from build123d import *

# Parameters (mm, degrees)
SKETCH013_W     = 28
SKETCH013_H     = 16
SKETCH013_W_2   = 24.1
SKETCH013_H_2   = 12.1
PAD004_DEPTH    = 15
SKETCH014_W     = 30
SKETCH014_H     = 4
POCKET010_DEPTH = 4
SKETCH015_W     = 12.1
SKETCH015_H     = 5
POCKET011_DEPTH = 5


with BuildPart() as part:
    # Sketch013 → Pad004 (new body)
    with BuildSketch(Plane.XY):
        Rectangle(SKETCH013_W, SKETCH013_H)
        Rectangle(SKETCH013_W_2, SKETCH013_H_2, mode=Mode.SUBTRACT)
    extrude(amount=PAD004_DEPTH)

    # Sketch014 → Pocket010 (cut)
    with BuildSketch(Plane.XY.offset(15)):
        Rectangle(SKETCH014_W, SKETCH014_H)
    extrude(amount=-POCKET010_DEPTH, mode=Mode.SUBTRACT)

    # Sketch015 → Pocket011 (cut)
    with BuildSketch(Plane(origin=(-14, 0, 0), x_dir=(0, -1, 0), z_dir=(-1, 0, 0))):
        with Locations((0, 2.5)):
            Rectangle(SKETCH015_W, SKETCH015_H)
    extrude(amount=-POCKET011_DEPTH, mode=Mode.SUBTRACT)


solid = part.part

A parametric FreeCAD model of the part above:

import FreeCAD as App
import Part
import Sketcher

V = App.Vector
Q = App.Units.Quantity

doc = App.newDocument("Part")
body = doc.addObject("PartDesign::Body", "Body")

sketch1 = body.newObject("Sketcher::SketchObject", "Sketch")
sketch1.AttachmentSupport = (doc.getObject("XY_Plane"), [""])
sketch1.MapMode = "FlatFace"
sketch1.addGeometry([
    Part.LineSegment(V(-14, 8, 0), V(-14, -8, 0)),
    Part.LineSegment(V(-14, -8, 0), V(14, -8, 0)),
    Part.LineSegment(V(14, -8, 0), V(14, 8, 0)),
    Part.LineSegment(V(14, 8, 0), V(-14, 8, 0)),
    Part.LineSegment(V(12, -6, 0), V(-12, -6, 0)),
    Part.LineSegment(V(-12, -6, 0), V(-12, 6, 0)),
    Part.LineSegment(V(-12, 6, 0), V(12, 6, 0)),
    Part.LineSegment(V(12, 6, 0), V(12, -6, 0)),
], False)
sketch1.addConstraint([
    Sketcher.Constraint("Coincident", 0, 2, 1, 1),
    Sketcher.Constraint("Coincident", 1, 2, 2, 1),
    Sketcher.Constraint("Coincident", 2, 2, 3, 1),
    Sketcher.Constraint("Coincident", 3, 2, 0, 1),
    Sketcher.Constraint("Coincident", 4, 2, 5, 1),
    Sketcher.Constraint("Coincident", 5, 2, 6, 1),
    Sketcher.Constraint("Coincident", 6, 2, 7, 1),
    Sketcher.Constraint("Coincident", 7, 2, 4, 1),
    Sketcher.Constraint("Vertical", 0),
    Sketcher.Constraint("Horizontal", 1),
    Sketcher.Constraint("Vertical", 2),
    Sketcher.Constraint("Horizontal", 3),
    Sketcher.Constraint("Horizontal", 4),
    Sketcher.Constraint("Vertical", 5),
    Sketcher.Constraint("Horizontal", 6),
    Sketcher.Constraint("Vertical", 7),
    Sketcher.Constraint("Symmetric", 0, 2, 2, 2, -1, 1),
    Sketcher.Constraint("Symmetric", 4, 2, 6, 2, -1, 1),
    Sketcher.Constraint("DistanceX", 1, 1, 1, 2, Q("28 mm")),
    Sketcher.Constraint("DistanceY", 0, 2, 0, 1, Q("16 mm")),
    Sketcher.Constraint("DistanceX", 4, 2, 4, 1, Q("24.1 mm")),
    Sketcher.Constraint("DistanceY", 5, 1, 5, 2, Q("12.1 mm")),
])
pad1 = body.newObject("PartDesign::Pad", "Pad")
pad1.Profile = sketch1
pad1.Length = 15

sketch2 = body.newObject("Sketcher::SketchObject", "Sketch001")
sketch2.AttachmentSupport = (doc.getObject("XY_Plane"), [""])
sketch2.MapMode = "FlatFace"
sketch2.AttachmentOffset = App.Placement(V(0, 0, 15), App.Rotation())
sketch2.addGeometry([
    Part.LineSegment(V(-15, 2, 0), V(-15, -2, 0)),
    Part.LineSegment(V(-15, -2, 0), V(15, -2, 0)),
    Part.LineSegment(V(15, -2, 0), V(15, 2, 0)),
    Part.LineSegment(V(15, 2, 0), V(-15, 2, 0)),
], False)
sketch2.addConstraint([
    Sketcher.Constraint("Coincident", 0, 2, 1, 1),
    Sketcher.Constraint("Coincident", 1, 2, 2, 1),
    Sketcher.Constraint("Coincident", 2, 2, 3, 1),
    Sketcher.Constraint("Coincident", 3, 2, 0, 1),
    Sketcher.Constraint("Vertical", 0),
    Sketcher.Constraint("Horizontal", 1),
    Sketcher.Constraint("Vertical", 2),
    Sketcher.Constraint("Horizontal", 3),
    Sketcher.Constraint("Symmetric", 0, 2, 2, 2, -1, 1),
    Sketcher.Constraint("DistanceX", 1, 1, 1, 2, Q("30 mm")),
    Sketcher.Constraint("DistanceY", 0, 2, 0, 1, Q("4 mm")),
])
pocket1 = body.newObject("PartDesign::Pocket", "Pocket")
pocket1.Profile = sketch2
pocket1.Length = 4

sketch3 = body.newObject("Sketcher::SketchObject", "Sketch002")
sketch3.AttachmentSupport = (doc.getObject("YZ_Plane"), [""])
sketch3.MapMode = "FlatFace"
sketch3.AttachmentOffset = App.Placement(V(0, 0, -14), App.Rotation())
sketch3.addGeometry([
    Part.LineSegment(V(6, 5, 0), V(6, 0, 0)),
    Part.LineSegment(V(6, 0, 0), V(-6, 0, 0)),
    Part.LineSegment(V(-6, 0, 0), V(-6, 5, 0)),
    Part.LineSegment(V(-6, 5, 0), V(6, 5, 0)),
], False)
sketch3.addConstraint([
    Sketcher.Constraint("Coincident", 0, 2, 1, 1),
    Sketcher.Constraint("Coincident", 1, 2, 2, 1),
    Sketcher.Constraint("Coincident", 2, 2, 3, 1),
    Sketcher.Constraint("Coincident", 3, 2, 0, 1),
    Sketcher.Constraint("Vertical", 0),
    Sketcher.Constraint("Horizontal", 1),
    Sketcher.Constraint("Vertical", 2),
    Sketcher.Constraint("Horizontal", 3),
    Sketcher.Constraint("Symmetric", 0, 2, 1, 2, -1, 1),
    Sketcher.Constraint("DistanceY", 0, 2, 0, 1, Q("5 mm")),
    Sketcher.Constraint("DistanceX", 1, 2, 1, 1, Q("12.1 mm")),
])
pocket2 = body.newObject("PartDesign::Pocket", "Pocket001")
pocket2.Profile = sketch3
pocket2.Length = 5
pocket2.Reversed = True

doc.recompute()
